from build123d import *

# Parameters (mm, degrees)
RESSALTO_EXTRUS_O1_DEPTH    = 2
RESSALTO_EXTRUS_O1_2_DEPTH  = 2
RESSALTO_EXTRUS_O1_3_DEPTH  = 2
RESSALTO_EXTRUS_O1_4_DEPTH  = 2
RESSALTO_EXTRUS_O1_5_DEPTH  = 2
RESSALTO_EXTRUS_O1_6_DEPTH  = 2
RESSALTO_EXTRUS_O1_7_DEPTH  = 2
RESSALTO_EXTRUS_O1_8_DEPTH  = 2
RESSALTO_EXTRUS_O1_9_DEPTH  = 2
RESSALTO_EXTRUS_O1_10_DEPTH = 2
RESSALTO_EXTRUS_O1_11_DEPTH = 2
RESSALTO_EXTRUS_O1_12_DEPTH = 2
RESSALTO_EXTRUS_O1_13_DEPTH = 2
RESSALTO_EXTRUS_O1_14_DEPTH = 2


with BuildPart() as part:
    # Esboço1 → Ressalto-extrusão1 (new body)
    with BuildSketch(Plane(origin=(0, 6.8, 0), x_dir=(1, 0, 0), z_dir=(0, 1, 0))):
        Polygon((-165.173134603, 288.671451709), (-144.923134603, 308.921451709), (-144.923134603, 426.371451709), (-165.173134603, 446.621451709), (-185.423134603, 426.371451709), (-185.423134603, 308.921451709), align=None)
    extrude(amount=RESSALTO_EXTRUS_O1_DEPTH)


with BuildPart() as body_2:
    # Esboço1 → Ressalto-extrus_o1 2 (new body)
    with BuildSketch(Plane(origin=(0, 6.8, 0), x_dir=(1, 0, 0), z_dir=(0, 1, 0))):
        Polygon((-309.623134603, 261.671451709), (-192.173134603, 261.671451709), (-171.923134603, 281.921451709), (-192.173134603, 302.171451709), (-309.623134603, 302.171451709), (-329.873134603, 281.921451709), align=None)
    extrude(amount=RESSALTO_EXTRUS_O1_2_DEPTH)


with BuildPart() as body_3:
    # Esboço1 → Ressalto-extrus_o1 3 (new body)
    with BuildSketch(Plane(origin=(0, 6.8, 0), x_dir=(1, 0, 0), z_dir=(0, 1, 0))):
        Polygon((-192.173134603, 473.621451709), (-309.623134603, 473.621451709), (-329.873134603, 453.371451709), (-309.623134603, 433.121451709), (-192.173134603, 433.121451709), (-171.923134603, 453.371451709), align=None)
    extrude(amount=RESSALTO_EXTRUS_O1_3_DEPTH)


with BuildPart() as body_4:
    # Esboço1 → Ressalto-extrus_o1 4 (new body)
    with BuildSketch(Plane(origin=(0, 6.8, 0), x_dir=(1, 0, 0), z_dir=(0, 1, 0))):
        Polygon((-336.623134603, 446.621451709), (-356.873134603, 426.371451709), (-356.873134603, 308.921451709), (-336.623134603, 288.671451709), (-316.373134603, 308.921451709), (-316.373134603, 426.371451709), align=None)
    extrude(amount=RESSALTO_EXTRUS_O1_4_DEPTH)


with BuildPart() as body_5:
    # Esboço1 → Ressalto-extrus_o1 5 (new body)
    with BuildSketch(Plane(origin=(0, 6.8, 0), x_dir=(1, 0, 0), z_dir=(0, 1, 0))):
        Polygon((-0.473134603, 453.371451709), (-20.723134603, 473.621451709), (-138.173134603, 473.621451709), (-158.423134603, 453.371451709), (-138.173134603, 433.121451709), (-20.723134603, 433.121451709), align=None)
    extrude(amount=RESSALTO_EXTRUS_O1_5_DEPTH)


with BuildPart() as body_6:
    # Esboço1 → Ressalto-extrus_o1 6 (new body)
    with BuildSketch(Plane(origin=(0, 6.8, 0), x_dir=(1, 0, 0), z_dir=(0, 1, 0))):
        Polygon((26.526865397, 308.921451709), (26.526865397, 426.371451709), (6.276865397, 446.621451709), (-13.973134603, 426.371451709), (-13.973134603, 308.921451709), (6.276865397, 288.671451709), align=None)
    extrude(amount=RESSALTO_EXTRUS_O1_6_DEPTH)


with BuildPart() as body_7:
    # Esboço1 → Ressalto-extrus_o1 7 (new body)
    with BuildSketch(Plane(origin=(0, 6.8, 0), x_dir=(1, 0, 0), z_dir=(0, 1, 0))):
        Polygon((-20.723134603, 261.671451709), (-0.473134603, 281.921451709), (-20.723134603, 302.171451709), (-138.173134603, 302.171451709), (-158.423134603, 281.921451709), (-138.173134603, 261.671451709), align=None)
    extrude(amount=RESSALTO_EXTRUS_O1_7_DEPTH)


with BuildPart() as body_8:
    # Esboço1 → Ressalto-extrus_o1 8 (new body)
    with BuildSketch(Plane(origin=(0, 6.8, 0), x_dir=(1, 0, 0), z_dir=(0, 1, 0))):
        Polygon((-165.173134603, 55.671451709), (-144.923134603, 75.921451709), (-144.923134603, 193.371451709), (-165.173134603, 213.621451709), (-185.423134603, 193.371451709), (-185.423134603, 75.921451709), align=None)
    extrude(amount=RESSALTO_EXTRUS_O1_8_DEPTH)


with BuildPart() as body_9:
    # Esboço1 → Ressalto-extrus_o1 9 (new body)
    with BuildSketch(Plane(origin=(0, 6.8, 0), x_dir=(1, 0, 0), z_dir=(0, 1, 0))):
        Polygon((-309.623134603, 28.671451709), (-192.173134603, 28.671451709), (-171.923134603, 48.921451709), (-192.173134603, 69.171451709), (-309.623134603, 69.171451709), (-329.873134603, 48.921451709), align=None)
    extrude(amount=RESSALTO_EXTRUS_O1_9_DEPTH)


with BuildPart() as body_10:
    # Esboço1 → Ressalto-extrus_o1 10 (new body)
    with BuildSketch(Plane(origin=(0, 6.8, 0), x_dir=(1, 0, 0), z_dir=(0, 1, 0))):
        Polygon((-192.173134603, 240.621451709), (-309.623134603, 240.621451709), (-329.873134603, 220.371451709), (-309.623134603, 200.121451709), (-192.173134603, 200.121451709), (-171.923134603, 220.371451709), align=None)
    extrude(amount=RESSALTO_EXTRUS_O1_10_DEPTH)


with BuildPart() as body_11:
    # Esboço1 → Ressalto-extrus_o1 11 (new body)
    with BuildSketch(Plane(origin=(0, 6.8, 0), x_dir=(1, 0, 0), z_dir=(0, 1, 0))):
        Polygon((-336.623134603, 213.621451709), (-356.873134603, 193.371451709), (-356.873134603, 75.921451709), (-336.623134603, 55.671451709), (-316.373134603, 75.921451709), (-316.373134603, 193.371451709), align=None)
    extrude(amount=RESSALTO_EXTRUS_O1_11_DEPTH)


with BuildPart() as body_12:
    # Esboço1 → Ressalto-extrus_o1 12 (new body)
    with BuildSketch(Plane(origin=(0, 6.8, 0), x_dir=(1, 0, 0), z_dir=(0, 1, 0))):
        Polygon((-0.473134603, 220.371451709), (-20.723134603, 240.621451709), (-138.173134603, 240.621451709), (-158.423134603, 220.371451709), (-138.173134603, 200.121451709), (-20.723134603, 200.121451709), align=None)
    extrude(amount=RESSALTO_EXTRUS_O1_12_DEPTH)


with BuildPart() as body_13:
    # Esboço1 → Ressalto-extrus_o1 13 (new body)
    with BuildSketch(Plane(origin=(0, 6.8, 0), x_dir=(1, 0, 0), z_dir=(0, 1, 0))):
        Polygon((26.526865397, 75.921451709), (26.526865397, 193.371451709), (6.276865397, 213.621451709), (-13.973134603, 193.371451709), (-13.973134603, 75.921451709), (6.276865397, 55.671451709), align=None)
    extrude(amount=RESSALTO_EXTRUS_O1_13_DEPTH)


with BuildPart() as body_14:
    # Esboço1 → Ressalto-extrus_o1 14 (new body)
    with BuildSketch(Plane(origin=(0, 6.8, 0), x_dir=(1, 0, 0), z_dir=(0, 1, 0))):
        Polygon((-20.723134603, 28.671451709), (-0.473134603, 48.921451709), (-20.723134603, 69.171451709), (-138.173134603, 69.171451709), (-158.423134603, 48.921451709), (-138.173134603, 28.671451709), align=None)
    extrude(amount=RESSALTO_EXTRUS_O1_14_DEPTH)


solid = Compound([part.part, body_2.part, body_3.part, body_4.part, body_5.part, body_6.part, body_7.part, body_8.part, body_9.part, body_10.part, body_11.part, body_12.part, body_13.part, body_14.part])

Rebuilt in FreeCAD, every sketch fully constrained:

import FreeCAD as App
import Part
import Sketcher

V = App.Vector

doc = App.newDocument("Part")
body = doc.addObject("PartDesign::Body", "Body")

# Sketch on XZ plane
sketch1 = doc.addObject("Sketcher::SketchObject", "Sketch")
body.addObject(sketch1)
sketch1.AttachmentSupport = (doc.XZ_Plane, [""])
sketch1.MapMode = "FlatFace"
sketch1.AttachmentOffset = App.Placement(V(0, 0, -6.8), App.Rotation())
sketch1.addGeometry([
    Part.LineSegment(V(-165.173135, -288.671452, 0), V(-144.923135, -308.921452, 0)),  # 0
    Part.LineSegment(V(-144.923135, -308.921452, 0), V(-144.923135, -426.371452, 0)),  # 1
    Part.LineSegment(V(-144.923135, -426.371452, 0), V(-165.173135, -446.621452, 0)),  # 2
    Part.LineSegment(V(-165.173135, -446.621452, 0), V(-185.423135, -426.371452, 0)),  # 3
    Part.LineSegment(V(-185.423135, -426.371452, 0), V(-185.423135, -308.921452, 0)),  # 4
    Part.LineSegment(V(-185.423135, -308.921452, 0), V(-165.173135, -288.671452, 0)),  # 5
], False)
sketch1.addConstraint([
    Sketcher.Constraint("Coincident", 0, 2, 1, 1),
    Sketcher.Constraint("Coincident", 1, 2, 2, 1),
    Sketcher.Constraint("Coincident", 2, 2, 3, 1),
    Sketcher.Constraint("Coincident", 3, 2, 4, 1),
    Sketcher.Constraint("Coincident", 4, 2, 5, 1),
    Sketcher.Constraint("Coincident", 5, 2, 0, 1),
    Sketcher.Constraint("Vertical", 1),
    Sketcher.Constraint("Vertical", 4),
    Sketcher.Constraint("Perpendicular", 0, 2),
    Sketcher.Constraint("Perpendicular", 2, 3),
    Sketcher.Constraint("Perpendicular", 3, 5),
    Sketcher.Constraint("Horizontal", 1, 2, 3, 2),
    Sketcher.Constraint("Horizontal", 0, 2, 4, 2),
    Sketcher.Constraint("Vertical", 2, 2, 5, 2),
    Sketcher.Constraint("DistanceY", 1, 2, 1, 1, 117.45),
    Sketcher.Constraint("DistanceY", 2, 2, 0, 2, 137.7),
    Sketcher.Constraint("DistanceY", 0, 2, -1, 1, 308.921452),
    Sketcher.Constraint("DistanceX", 0, 2, -1, 1, 144.923135),
])
pad1 = doc.addObject("PartDesign::Pad", "Pad")
body.addObject(pad1)
pad1.Profile = sketch1
pad1.Length = 2
pad1.Reversed = True
body2 = doc.addObject("PartDesign::Body", "Body001")

# Sketch on XZ plane
sketch2 = doc.addObject("Sketcher::SketchObject", "Sketch001")
body2.addObject(sketch2)
sketch2.AttachmentSupport = (doc.getObject("XZ_Plane001"), [""])
sketch2.MapMode = "FlatFace"
sketch2.AttachmentOffset = App.Placement(V(0, 0, -6.8), App.Rotation())
sketch2.addGeometry([
    Part.LineSegment(V(-309.623135, -261.671452, 0), V(-192.173135, -261.671452, 0)),  # 0
    Part.LineSegment(V(-192.173135, -261.671452, 0), V(-171.923135, -281.921452, 0)),  # 1
    Part.LineSegment(V(-171.923135, -281.921452, 0), V(-192.173135, -302.171452, 0)),  # 2
    Part.LineSegment(V(-192.173135, -302.171452, 0), V(-309.623135, -302.171452, 0)),  # 3
    Part.LineSegment(V(-309.623135, -302.171452, 0), V(-329.873135, -281.921452, 0)),  # 4
    Part.LineSegment(V(-329.873135, -281.921452, 0), V(-309.623135, -261.671452, 0)),  # 5
], False)
sketch2.addConstraint([
    Sketcher.Constraint("Coincident", 0, 2, 1, 1),
    Sketcher.Constraint("Coincident", 1, 2, 2, 1),
    Sketcher.Constraint("Coincident", 2, 2, 3, 1),
    Sketcher.Constraint("Coincident", 3, 2, 4, 1),
    Sketcher.Constraint("Coincident", 4, 2, 5, 1),
    Sketcher.Constraint("Coincident", 5, 2, 0, 1),
    Sketcher.Constraint("Horizontal", 0),
    Sketcher.Constraint("Horizontal", 3),
    Sketcher.Constraint("Perpendicular", 1, 2),
    Sketcher.Constraint("Perpendicular", 2, 4),
    Sketcher.Constraint("Perpendicular", 4, 5),
    Sketcher.Constraint("Horizontal", 1, 2, 4, 2),
    Sketcher.Constraint("Vertical", 0, 2, 2, 2),
    Sketcher.Constraint("Vertical", 3, 2, 5, 2),
    Sketcher.Constraint("DistanceX", 0, 1, 0, 2, 117.45),
    Sketcher.Constraint("DistanceY", 2, 2, 0, 2, 40.5),
    Sketcher.Constraint("DistanceY", 0, 2, -1, 1, 261.671452),
    Sketcher.Constraint("DistanceX", 0, 2, -1, 1, 192.173135),
])
pad2 = doc.addObject("PartDesign::Pad", "Pad001")
body2.addObject(pad2)
pad2.Profile = sketch2
pad2.Length = 2
pad2.Reversed = True
body3 = doc.addObject("PartDesign::Body", "Body002")

# Sketch on XZ plane
sketch3 = doc.addObject("Sketcher::SketchObject", "Sketch002")
body3.addObject(sketch3)
sketch3.AttachmentSupport = (doc.getObject("XZ_Plane002"), [""])
sketch3.MapMode = "FlatFace"
sketch3.AttachmentOffset = App.Placement(V(0, 0, -6.8), App.Rotation())
sketch3.addGeometry([
    Part.LineSegment(V(-192.173135, -473.621452, 0), V(-309.623135, -473.621452, 0)),  # 0
    Part.LineSegment(V(-309.623135, -473.621452, 0), V(-329.873135, -453.371452, 0)),  # 1
    Part.LineSegment(V(-329.873135, -453.371452, 0), V(-309.623135, -433.121452, 0)),  # 2
    Part.LineSegment(V(-309.623135, -433.121452, 0), V(-192.173135, -433.121452, 0)),  # 3
    Part.LineSegment(V(-192.173135, -433.121452, 0), V(-171.923135, -453.371452, 0)),  # 4
    Part.LineSegment(V(-171.923135, -453.371452, 0), V(-192.173135, -473.621452, 0)),  # 5
], False)
sketch3.addConstraint([
    Sketcher.Constraint("Coincident", 0, 2, 1, 1),
    Sketcher.Constraint("Coincident", 1, 2, 2, 1),
    Sketcher.Constraint("Coincident", 2, 2, 3, 1),
    Sketcher.Constraint("Coincident", 3, 2, 4, 1),
    Sketcher.Constraint("Coincident", 4, 2, 5, 1),
    Sketcher.Constraint("Coincident", 5, 2, 0, 1),
    Sketcher.Constraint("Horizontal", 0),
    Sketcher.Constraint("Horizontal", 3),
    Sketcher.Constraint("Perpendicular", 1, 2),
    Sketcher.Constraint("Perpendicular", 2, 4),
    Sketcher.Constraint("Perpendicular", 4, 5),
    Sketcher.Constraint("Horizontal", 1, 2, 4, 2),
    Sketcher.Constraint("Vertical", 0, 2, 2, 2),
    Sketcher.Constraint("Vertical", 3, 2, 5, 2),
    Sketcher.Constraint("DistanceX", 0, 2, 0, 1, 117.45),
    Sketcher.Constraint("DistanceY", 0, 2, 2, 2, 40.5),
    Sketcher.Constraint("DistanceY", 0, 2, -1, 1, 473.621452),
    Sketcher.Constraint("DistanceX", 0, 2, -1, 1, 309.623135),
])
pad3 = doc.addObject("PartDesign::Pad", "Pad002")
body3.addObject(pad3)
pad3.Profile = sketch3
pad3.Length = 2
pad3.Reversed = True
body4 = doc.addObject("PartDesign::Body", "Body003")

# Sketch on XZ plane
sketch4 = doc.addObject("Sketcher::SketchObject", "Sketch003")
body4.addObject(sketch4)
sketch4.AttachmentSupport = (doc.getObject("XZ_Plane003"), [""])
sketch4.MapMode = "FlatFace"
sketch4.AttachmentOffset = App.Placement(V(0, 0, -6.8), App.Rotation())
sketch4.addGeometry([
    Part.LineSegment(V(-336.623135, -446.621452, 0), V(-356.873135, -426.371452, 0)),  # 0
    Part.LineSegment(V(-356.873135, -426.371452, 0), V(-356.873135, -308.921452, 0)),  # 1
    Part.LineSegment(V(-356.873135, -308.921452, 0), V(-336.623135, -288.671452, 0)),  # 2
    Part.LineSegment(V(-336.623135, -288.671452, 0), V(-316.373135, -308.921452, 0)),  # 3
    Part.LineSegment(V(-316.373135, -308.921452, 0), V(-316.373135, -426.371452, 0)),  # 4
    Part.LineSegment(V(-316.373135, -426.371452, 0), V(-336.623135, -446.621452, 0)),  # 5
], False)
sketch4.addConstraint([
    Sketcher.Constraint("Coincident", 0, 2, 1, 1),
    Sketcher.Constraint("Coincident", 1, 2, 2, 1),
    Sketcher.Constraint("Coincident", 2, 2, 3, 1),
    Sketcher.Constraint("Coincident", 3, 2, 4, 1),
    Sketcher.Constraint("Coincident", 4, 2, 5, 1),
    Sketcher.Constraint("Coincident", 5, 2, 0, 1),
    Sketcher.Constraint("Vertical", 1),
    Sketcher.Constraint("Vertical", 4),
    Sketcher.Constraint("Perpendicular", 0, 2),
    Sketcher.Constraint("Perpendicular", 2, 3),
    Sketcher.Constraint("Perpendicular", 3, 5),
    Sketcher.Constraint("Horizontal", 1, 2, 3, 2),
    Sketcher.Constraint("Horizontal", 0, 2, 4, 2),
    Sketcher.Constraint("Vertical", 2, 2, 5, 2),
    Sketcher.Constraint("DistanceY", 1, 1, 1, 2, 117.45),
    Sketcher.Constraint("DistanceY", 0, 2, 2, 2, 137.7),
    Sketcher.Constraint("DistanceY", 0, 2, -1, 1, 426.371452),
    Sketcher.Constraint("DistanceX", 0, 2, -1, 1, 356.873135),
])
pad4 = doc.addObject("PartDesign::Pad", "Pad003")
body4.addObject(pad4)
pad4.Profile = sketch4
pad4.Length = 2
pad4.Reversed = True
body5 = doc.addObject("PartDesign::Body", "Body004")

# Sketch on XZ plane
sketch5 = doc.addObject("Sketcher::SketchObject", "Sketch004")
body5.addObject(sketch5)
sketch5.AttachmentSupport = (doc.getObject("XZ_Plane004"), [""])
sketch5.MapMode = "FlatFace"
sketch5.AttachmentOffset = App.Placement(V(0, 0, -6.8), App.Rotation())
sketch5.addGeometry([
    Part.LineSegment(V(-0.473135, -453.371452, 0), V(-20.723135, -473.621452, 0)),  # 0
    Part.LineSegment(V(-20.723135, -473.621452, 0), V(-138.173135, -473.621452, 0)),  # 1
    Part.LineSegment(V(-138.173135, -473.621452, 0), V(-158.423135, -453.371452, 0)),  # 2
    Part.LineSegment(V(-158.423135, -453.371452, 0), V(-138.173135, -433.121452, 0)),  # 3
    Part.LineSegment(V(-138.173135, -433.121452, 0), V(-20.723135, -433.121452, 0)),  # 4
    Part.LineSegment(V(-20.723135, -433.121452, 0), V(-0.473135, -453.371452, 0)),  # 5
], False)
sketch5.addConstraint([
    Sketcher.Constraint("Coincident", 0, 2, 1, 1),
    Sketcher.Constraint("Coincident", 1, 2, 2, 1),
    Sketcher.Constraint("Coincident", 2, 2, 3, 1),
    Sketcher.Constraint("Coincident", 3, 2, 4, 1),
    Sketcher.Constraint("Coincident", 4, 2, 5, 1),
    Sketcher.Constraint("Coincident", 5, 2, 0, 1),
    Sketcher.Constraint("Horizontal", 1),
    Sketcher.Constraint("Horizontal", 4),
    Sketcher.Constraint("Perpendicular", 0, 2),
    Sketcher.Constraint("Perpendicular", 2, 3),
    Sketcher.Constraint("Perpendicular", 3, 5),
    Sketcher.Constraint("Horizontal", 2, 2, 5, 2),
    Sketcher.Constraint("Vertical", 1, 2, 3, 2),
    Sketcher.Constraint("Vertical", 0, 2, 4, 2),
    Sketcher.Constraint("DistanceX", 1, 2, 1, 1, 117.45),
    Sketcher.Constraint("DistanceX", 2, 2, 0, 2, 137.7),
    Sketcher.Constraint("DistanceY", 0, 2, -1, 1, 473.621452),
    Sketcher.Constraint("DistanceX", 0, 2, -1, 1, 20.723135),
])
pad5 = doc.addObject("PartDesign::Pad", "Pad004")
body5.addObject(pad5)
pad5.Profile = sketch5
pad5.Length = 2
pad5.Reversed = True
body6 = doc.addObject("PartDesign::Body", "Body005")

# Sketch on XZ plane
sketch6 = doc.addObject("Sketcher::SketchObject", "Sketch005")
body6.addObject(sketch6)
sketch6.AttachmentSupport = (doc.getObject("XZ_Plane005"), [""])
sketch6.MapMode = "FlatFace"
sketch6.AttachmentOffset = App.Placement(V(0, 0, -6.8), App.Rotation())
sketch6.addGeometry([
    Part.LineSegment(V(26.526865, -308.921452, 0), V(26.526865, -426.371452, 0)),  # 0
    Part.LineSegment(V(26.526865, -426.371452, 0), V(6.276865, -446.621452, 0)),  # 1
    Part.LineSegment(V(6.276865, -446.621452, 0), V(-13.973135, -426.371452, 0)),  # 2
    Part.LineSegment(V(-13.973135, -426.371452, 0), V(-13.973135, -308.921452, 0)),  # 3
    Part.LineSegment(V(-13.973135, -308.921452, 0), V(6.276865, -288.671452, 0)),  # 4
    Part.LineSegment(V(6.276865, -288.671452, 0), V(26.526865, -308.921452, 0)),  # 5
], False)
sketch6.addConstraint([
    Sketcher.Constraint("Coincident", 0, 2, 1, 1),
    Sketcher.Constraint("Coincident", 1, 2, 2, 1),
    Sketcher.Constraint("Coincident", 2, 2, 3, 1),
    Sketcher.Constraint("Coincident", 3, 2, 4, 1),
    Sketcher.Constraint("Coincident", 4, 2, 5, 1),
    Sketcher.Constraint("Coincident", 5, 2, 0, 1),
    Sketcher.Constraint("Vertical", 0),
    Sketcher.Constraint("Vertical", 3),
    Sketcher.Constraint("Perpendicular", 1, 2),
    Sketcher.Constraint("Perpendicular", 2, 4),
    Sketcher.Constraint("Perpendicular", 4, 5),
    Sketcher.Constraint("Horizontal", 0, 2, 2, 2),
    Sketcher.Constraint("Horizontal", 3, 2, 5, 2),
    Sketcher.Constraint("Vertical", 1, 2, 4, 2),
    Sketcher.Constraint("DistanceY", 0, 2, 0, 1, 117.45),
    Sketcher.Constraint("DistanceX", 2, 2, 0, 2, 40.5),
    Sketcher.Constraint("DistanceY", 0, 2, -1, 1, 426.371452),
    Sketcher.Constraint("DistanceX", -1, 1, 0, 2, 26.526865),
])
pad6 = doc.addObject("PartDesign::Pad", "Pad005")
body6.addObject(pad6)
pad6.Profile = sketch6
pad6.Length = 2
pad6.Reversed = True
body7 = doc.addObject("PartDesign::Body", "Body006")

# Sketch on XZ plane
sketch7 = doc.addObject("Sketcher::SketchObject", "Sketch006")
body7.addObject(sketch7)
sketch7.AttachmentSupport = (doc.getObject("XZ_Plane006"), [""])
sketch7.MapMode = "FlatFace"
sketch7.AttachmentOffset = App.Placement(V(0, 0, -6.8), App.Rotation())
sketch7.addGeometry([
    Part.LineSegment(V(-20.723135, -261.671452, 0), V(-0.473135, -281.921452, 0)),  # 0
    Part.LineSegment(V(-0.473135, -281.921452, 0), V(-20.723135, -302.171452, 0)),  # 1
    Part.LineSegment(V(-20.723135, -302.171452, 0), V(-138.173135, -302.171452, 0)),  # 2
    Part.LineSegment(V(-138.173135, -302.171452, 0), V(-158.423135, -281.921452, 0)),  # 3
    Part.LineSegment(V(-158.423135, -281.921452, 0), V(-138.173135, -261.671452, 0)),  # 4
    Part.LineSegment(V(-138.173135, -261.671452, 0), V(-20.723135, -261.671452, 0)),  # 5
], False)
sketch7.addConstraint([
    Sketcher.Constraint("Coincident", 0, 2, 1, 1),
    Sketcher.Constraint("Coincident", 1, 2, 2, 1),
    Sketcher.Constraint("Coincident", 2, 2, 3, 1),
    Sketcher.Constraint("Coincident", 3, 2, 4, 1),
    Sketcher.Constraint("Coincident", 4, 2, 5, 1),
    Sketcher.Constraint("Coincident", 5, 2, 0, 1),
    Sketcher.Constraint("Horizontal", 2),
    Sketcher.Constraint("Horizontal", 5),
    Sketcher.Constraint("Perpendicular", 0, 1),
    Sketcher.Constraint("Perpendicular", 1, 3),
    Sketcher.Constraint("Perpendicular", 3, 4),
    Sketcher.Constraint("Horizontal", 0, 2, 3, 2),
    Sketcher.Constraint("Vertical", 2, 2, 4, 2),
    Sketcher.Constraint("Vertical", 1, 2, 5, 2),
    Sketcher.Constraint("DistanceX", 2, 2, 2, 1, 117.45),
    Sketcher.Constraint("DistanceX", 2, 2, 0, 2, 137.7),
    Sketcher.Constraint("DistanceY", 0, 2, -1, 1, 281.921452),
    Sketcher.Constraint("DistanceX", 0, 2, -1, 1, 0.473135),
])
pad7 = doc.addObject("PartDesign::Pad", "Pad006")
body7.addObject(pad7)
pad7.Profile = sketch7
pad7.Length = 2
pad7.Reversed = True
body8 = doc.addObject("PartDesign::Body", "Body007")

# Sketch on XZ plane
sketch8 = doc.addObject("Sketcher::SketchObject", "Sketch007")
body8.addObject(sketch8)
sketch8.AttachmentSupport = (doc.getObject("XZ_Plane007"), [""])
sketch8.MapMode = "FlatFace"
sketch8.AttachmentOffset = App.Placement(V(0, 0, -6.8), App.Rotation())
sketch8.addGeometry([
    Part.LineSegment(V(-165.173135, -55.671452, 0), V(-144.923135, -75.921452, 0)),  # 0
    Part.LineSegment(V(-144.923135, -75.921452, 0), V(-144.923135, -193.371452, 0)),  # 1
    Part.LineSegment(V(-144.923135, -193.371452, 0), V(-165.173135, -213.621452, 0)),  # 2
    Part.LineSegment(V(-165.173135, -213.621452, 0), V(-185.423135, -193.371452, 0)),  # 3
    Part.LineSegment(V(-185.423135, -193.371452, 0), V(-185.423135, -75.921452, 0)),  # 4
    Part.LineSegment(V(-185.423135, -75.921452, 0), V(-165.173135, -55.671452, 0)),  # 5
], False)
sketch8.addConstraint([
    Sketcher.Constraint("Coincident", 0, 2, 1, 1),
    Sketcher.Constraint("Coincident", 1, 2, 2, 1),
    Sketcher.Constraint("Coincident", 2, 2, 3, 1),
    Sketcher.Constraint("Coincident", 3, 2, 4, 1),
    Sketcher.Constraint("Coincident", 4, 2, 5, 1),
    Sketcher.Constraint("Coincident", 5, 2, 0, 1),
    Sketcher.Constraint("Vertical", 1),
    Sketcher.Constraint("Vertical", 4),
    Sketcher.Constraint("Perpendicular", 0, 2),
    Sketcher.Constraint("Perpendicular", 2, 3),
    Sketcher.Constraint("Perpendicular", 3, 5),
    Sketcher.Constraint("Horizontal", 1, 2, 3, 2),
    Sketcher.Constraint("Horizontal", 0, 2, 4, 2),
    Sketcher.Constraint("Vertical", 2, 2, 5, 2),
    Sketcher.Constraint("DistanceY", 1, 2, 1, 1, 117.45),
    Sketcher.Constraint("DistanceY", 2, 2, 0, 2, 137.7),
    Sketcher.Constraint("DistanceY", 0, 2, -1, 1, 75.921452),
    Sketcher.Constraint("DistanceX", 0, 2, -1, 1, 144.923135),
])
pad8 = doc.addObject("PartDesign::Pad", "Pad007")
body8.addObject(pad8)
pad8.Profile = sketch8
pad8.Length = 2
pad8.Reversed = True
body9 = doc.addObject("PartDesign::Body", "Body008")

# Sketch on XZ plane
sketch9 = doc.addObject("Sketcher::SketchObject", "Sketch008")
body9.addObject(sketch9)
sketch9.AttachmentSupport = (doc.getObject("XZ_Plane008"), [""])
sketch9.MapMode = "FlatFace"
sketch9.AttachmentOffset = App.Placement(V(0, 0, -6.8), App.Rotation())
sketch9.addGeometry([
    Part.LineSegment(V(-309.623135, -28.671452, 0), V(-192.173135, -28.671452, 0)),  # 0
    Part.LineSegment(V(-192.173135, -28.671452, 0), V(-171.923135, -48.921452, 0)),  # 1
    Part.LineSegment(V(-171.923135, -48.921452, 0), V(-192.173135, -69.171452, 0)),  # 2
    Part.LineSegment(V(-192.173135, -69.171452, 0), V(-309.623135, -69.171452, 0)),  # 3
    Part.LineSegment(V(-309.623135, -69.171452, 0), V(-329.873135, -48.921452, 0)),  # 4
    Part.LineSegment(V(-329.873135, -48.921452, 0), V(-309.623135, -28.671452, 0)),  # 5
], False)
sketch9.addConstraint([
    Sketcher.Constraint("Coincident", 0, 2, 1, 1),
    Sketcher.Constraint("Coincident", 1, 2, 2, 1),
    Sketcher.Constraint("Coincident", 2, 2, 3, 1),
    Sketcher.Constraint("Coincident", 3, 2, 4, 1),
    Sketcher.Constraint("Coincident", 4, 2, 5, 1),
    Sketcher.Constraint("Coincident", 5, 2, 0, 1),
    Sketcher.Constraint("Horizontal", 0),
    Sketcher.Constraint("Horizontal", 3),
    Sketcher.Constraint("Perpendicular", 1, 2),
    Sketcher.Constraint("Perpendicular", 2, 4),
    Sketcher.Constraint("Perpendicular", 4, 5),
    Sketcher.Constraint("Horizontal", 1, 2, 4, 2),
    Sketcher.Constraint("Vertical", 0, 2, 2, 2),
    Sketcher.Constraint("Vertical", 3, 2, 5, 2),
    Sketcher.Constraint("DistanceX", 0, 1, 0, 2, 117.45),
    Sketcher.Constraint("DistanceY", 2, 2, 0, 2, 40.5),
    Sketcher.Constraint("DistanceY", 0, 2, -1, 1, 28.671452),
    Sketcher.Constraint("DistanceX", 0, 2, -1, 1, 192.173135),
])
pad9 = doc.addObject("PartDesign::Pad", "Pad008")
body9.addObject(pad9)
pad9.Profile = sketch9
pad9.Length = 2
pad9.Reversed = True
body10 = doc.addObject("PartDesign::Body", "Body009")

# Sketch on XZ plane
sketch10 = doc.addObject("Sketcher::SketchObject", "Sketch009")
body10.addObject(sketch10)
sketch10.AttachmentSupport = (doc.getObject("XZ_Plane009"), [""])
sketch10.MapMode = "FlatFace"
sketch10.AttachmentOffset = App.Placement(V(0, 0, -6.8), App.Rotation())
sketch10.addGeometry([
    Part.LineSegment(V(-192.173135, -240.621452, 0), V(-309.623135, -240.621452, 0)),  # 0
    Part.LineSegment(V(-309.623135, -240.621452, 0), V(-329.873135, -220.371452, 0)),  # 1
    Part.LineSegment(V(-329.873135, -220.371452, 0), V(-309.623135, -200.121452, 0)),  # 2
    Part.LineSegment(V(-309.623135, -200.121452, 0), V(-192.173135, -200.121452, 0)),  # 3
    Part.LineSegment(V(-192.173135, -200.121452, 0), V(-171.923135, -220.371452, 0)),  # 4
    Part.LineSegment(V(-171.923135, -220.371452, 0), V(-192.173135, -240.621452, 0)),  # 5
], False)
sketch10.addConstraint([
    Sketcher.Constraint("Coincident", 0, 2, 1, 1),
    Sketcher.Constraint("Coincident", 1, 2, 2, 1),
    Sketcher.Constraint("Coincident", 2, 2, 3, 1),
    Sketcher.Constraint("Coincident", 3, 2, 4, 1),
    Sketcher.Constraint("Coincident", 4, 2, 5, 1),
    Sketcher.Constraint("Coincident", 5, 2, 0, 1),
    Sketcher.Constraint("Horizontal", 0),
    Sketcher.Constraint("Horizontal", 3),
    Sketcher.Constraint("Perpendicular", 1, 2),
    Sketcher.Constraint("Perpendicular", 2, 4),
    Sketcher.Constraint("Perpendicular", 4, 5),
    Sketcher.Constraint("Horizontal", 1, 2, 4, 2),
    Sketcher.Constraint("Vertical", 0, 2, 2, 2),
    Sketcher.Constraint("Vertical", 3, 2, 5, 2),
    Sketcher.Constraint("DistanceX", 0, 2, 0, 1, 117.45),
    Sketcher.Constraint("DistanceY", 0, 2, 2, 2, 40.5),
    Sketcher.Constraint("DistanceY", 0, 2, -1, 1, 240.621452),
    Sketcher.Constraint("DistanceX", 0, 2, -1, 1, 309.623135),
])
pad10 = doc.addObject("PartDesign::Pad", "Pad009")
body10.addObject(pad10)
pad10.Profile = sketch10
pad10.Length = 2
pad10.Reversed = True
body11 = doc.addObject("PartDesign::Body", "Body010")

# Sketch on XZ plane
sketch11 = doc.addObject("Sketcher::SketchObject", "Sketch010")
body11.addObject(sketch11)
sketch11.AttachmentSupport = (doc.getObject("XZ_Plane010"), [""])
sketch11.MapMode = "FlatFace"
sketch11.AttachmentOffset = App.Placement(V(0, 0, -6.8), App.Rotation())
sketch11.addGeometry([
    Part.LineSegment(V(-336.623135, -213.621452, 0), V(-356.873135, -193.371452, 0)),  # 0
    Part.LineSegment(V(-356.873135, -193.371452, 0), V(-356.873135, -75.921452, 0)),  # 1
    Part.LineSegment(V(-356.873135, -75.921452, 0), V(-336.623135, -55.671452, 0)),  # 2
    Part.LineSegment(V(-336.623135, -55.671452, 0), V(-316.373135, -75.921452, 0)),  # 3
    Part.LineSegment(V(-316.373135, -75.921452, 0), V(-316.373135, -193.371452, 0)),  # 4
    Part.LineSegment(V(-316.373135, -193.371452, 0), V(-336.623135, -213.621452, 0)),  # 5
], False)
sketch11.addConstraint([
    Sketcher.Constraint("Coincident", 0, 2, 1, 1),
    Sketcher.Constraint("Coincident", 1, 2, 2, 1),
    Sketcher.Constraint("Coincident", 2, 2, 3, 1),
    Sketcher.Constraint("Coincident", 3, 2, 4, 1),
    Sketcher.Constraint("Coincident", 4, 2, 5, 1),
    Sketcher.Constraint("Coincident", 5, 2, 0, 1),
    Sketcher.Constraint("Vertical", 1),
    Sketcher.Constraint("Vertical", 4),
    Sketcher.Constraint("Perpendicular", 0, 2),
    Sketcher.Constraint("Perpendicular", 2, 3),
    Sketcher.Constraint("Perpendicular", 3, 5),
    Sketcher.Constraint("Horizontal", 1, 2, 3, 2),
    Sketcher.Constraint("Horizontal", 0, 2, 4, 2),
    Sketcher.Constraint("Vertical", 2, 2, 5, 2),
    Sketcher.Constraint("DistanceY", 1, 1, 1, 2, 117.45),
    Sketcher.Constraint("DistanceY", 0, 2, 2, 2, 137.7),
    Sketcher.Constraint("DistanceY", 0, 2, -1, 1, 193.371452),
    Sketcher.Constraint("DistanceX", 0, 2, -1, 1, 356.873135),
])
pad11 = doc.addObject("PartDesign::Pad", "Pad010")
body11.addObject(pad11)
pad11.Profile = sketch11
pad11.Length = 2
pad11.Reversed = True
body12 = doc.addObject("PartDesign::Body", "Body011")

# Sketch on XZ plane
sketch12 = doc.addObject("Sketcher::SketchObject", "Sketch011")
body12.addObject(sketch12)
sketch12.AttachmentSupport = (doc.getObject("XZ_Plane011"), [""])
sketch12.MapMode = "FlatFace"
sketch12.AttachmentOffset = App.Placement(V(0, 0, -6.8), App.Rotation())
sketch12.addGeometry([
    Part.LineSegment(V(-0.473135, -220.371452, 0), V(-20.723135, -240.621452, 0)),  # 0
    Part.LineSegment(V(-20.723135, -240.621452, 0), V(-138.173135, -240.621452, 0)),  # 1
    Part.LineSegment(V(-138.173135, -240.621452, 0), V(-158.423135, -220.371452, 0)),  # 2
    Part.LineSegment(V(-158.423135, -220.371452, 0), V(-138.173135, -200.121452, 0)),  # 3
    Part.LineSegment(V(-138.173135, -200.121452, 0), V(-20.723135, -200.121452, 0)),  # 4
    Part.LineSegment(V(-20.723135, -200.121452, 0), V(-0.473135, -220.371452, 0)),  # 5
], False)
sketch12.addConstraint([
    Sketcher.Constraint("Coincident", 0, 2, 1, 1),
    Sketcher.Constraint("Coincident", 1, 2, 2, 1),
    Sketcher.Constraint("Coincident", 2, 2, 3, 1),
    Sketcher.Constraint("Coincident", 3, 2, 4, 1),
    Sketcher.Constraint("Coincident", 4, 2, 5, 1),
    Sketcher.Constraint("Coincident", 5, 2, 0, 1),
    Sketcher.Constraint("Horizontal", 1),
    Sketcher.Constraint("Horizontal", 4),
    Sketcher.Constraint("Perpendicular", 0, 2),
    Sketcher.Constraint("Perpendicular", 2, 3),
    Sketcher.Constraint("Perpendicular", 3, 5),
    Sketcher.Constraint("Horizontal", 2, 2, 5, 2),
    Sketcher.Constraint("Vertical", 1, 2, 3, 2),
    Sketcher.Constraint("Vertical", 0, 2, 4, 2),
    Sketcher.Constraint("DistanceX", 1, 2, 1, 1, 117.45),
    Sketcher.Constraint("DistanceX", 2, 2, 0, 2, 137.7),
    Sketcher.Constraint("DistanceY", 0, 2, -1, 1, 240.621452),
    Sketcher.Constraint("DistanceX", 0, 2, -1, 1, 20.723135),
])
pad12 = doc.addObject("PartDesign::Pad", "Pad011")
body12.addObject(pad12)
pad12.Profile = sketch12
pad12.Length = 2
pad12.Reversed = True
body13 = doc.addObject("PartDesign::Body", "Body012")

# Sketch on XZ plane
sketch13 = doc.addObject("Sketcher::SketchObject", "Sketch012")
body13.addObject(sketch13)
sketch13.AttachmentSupport = (doc.getObject("XZ_Plane012"), [""])
sketch13.MapMode = "FlatFace"
sketch13.AttachmentOffset = App.Placement(V(0, 0, -6.8), App.Rotation())
sketch13.addGeometry([
    Part.LineSegment(V(26.526865, -75.921452, 0), V(26.526865, -193.371452, 0)),  # 0
    Part.LineSegment(V(26.526865, -193.371452, 0), V(6.276865, -213.621452, 0)),  # 1
    Part.LineSegment(V(6.276865, -213.621452, 0), V(-13.973135, -193.371452, 0)),  # 2
    Part.LineSegment(V(-13.973135, -193.371452, 0), V(-13.973135, -75.921452, 0)),  # 3
    Part.LineSegment(V(-13.973135, -75.921452, 0), V(6.276865, -55.671452, 0)),  # 4
    Part.LineSegment(V(6.276865, -55.671452, 0), V(26.526865, -75.921452, 0)),  # 5
], False)
sketch13.addConstraint([
    Sketcher.Constraint("Coincident", 0, 2, 1, 1),
    Sketcher.Constraint("Coincident", 1, 2, 2, 1),
    Sketcher.Constraint("Coincident", 2, 2, 3, 1),
    Sketcher.Constraint("Coincident", 3, 2, 4, 1),
    Sketcher.Constraint("Coincident", 4, 2, 5, 1),
    Sketcher.Constraint("Coincident", 5, 2, 0, 1),
    Sketcher.Constraint("Vertical", 0),
    Sketcher.Constraint("Vertical", 3),
    Sketcher.Constraint("Perpendicular", 1, 2),
    Sketcher.Constraint("Perpendicular", 2, 4),
    Sketcher.Constraint("Perpendicular", 4, 5),
    Sketcher.Constraint("Horizontal", 0, 2, 2, 2),
    Sketcher.Constraint("Horizontal", 3, 2, 5, 2),
    Sketcher.Constraint("Vertical", 1, 2, 4, 2),
    Sketcher.Constraint("DistanceY", 0, 2, 0, 1, 117.45),
    Sketcher.Constraint("DistanceX", 2, 2, 0, 2, 40.5),
    Sketcher.Constraint("DistanceY", 0, 2, -1, 1, 193.371452),
    Sketcher.Constraint("DistanceX", -1, 1, 0, 2, 26.526865),
])
pad13 = doc.addObject("PartDesign::Pad", "Pad012")
body13.addObject(pad13)
pad13.Profile = sketch13
pad13.Length = 2
pad13.Reversed = True
body14 = doc.addObject("PartDesign::Body", "Body013")

# Sketch on XZ plane
sketch14 = doc.addObject("Sketcher::SketchObject", "Sketch013")
body14.addObject(sketch14)
sketch14.AttachmentSupport = (doc.getObject("XZ_Plane013"), [""])
sketch14.MapMode = "FlatFace"
sketch14.AttachmentOffset = App.Placement(V(0, 0, -6.8), App.Rotation())
sketch14.addGeometry([
    Part.LineSegment(V(-20.723135, -28.671452, 0), V(-0.473135, -48.921452, 0)),  # 0
    Part.LineSegment(V(-0.473135, -48.921452, 0), V(-20.723135, -69.171452, 0)),  # 1
    Part.LineSegment(V(-20.723135, -69.171452, 0), V(-138.173135, -69.171452, 0)),  # 2
    Part.LineSegment(V(-138.173135, -69.171452, 0), V(-158.423135, -48.921452, 0)),  # 3
    Part.LineSegment(V(-158.423135, -48.921452, 0), V(-138.173135, -28.671452, 0)),  # 4
    Part.LineSegment(V(-138.173135, -28.671452, 0), V(-20.723135, -28.671452, 0)),  # 5
], False)
sketch14.addConstraint([
    Sketcher.Constraint("Coincident", 0, 2, 1, 1),
    Sketcher.Constraint("Coincident", 1, 2, 2, 1),
    Sketcher.Constraint("Coincident", 2, 2, 3, 1),
    Sketcher.Constraint("Coincident", 3, 2, 4, 1),
    Sketcher.Constraint("Coincident", 4, 2, 5, 1),
    Sketcher.Constraint("Coincident", 5, 2, 0, 1),
    Sketcher.Constraint("Horizontal", 2),
    Sketcher.Constraint("Horizontal", 5),
    Sketcher.Constraint("Perpendicular", 0, 1),
    Sketcher.Constraint("Perpendicular", 1, 3),
    Sketcher.Constraint("Perpendicular", 3, 4),
    Sketcher.Constraint("Horizontal", 0, 2, 3, 2),
    Sketcher.Constraint("Vertical", 2, 2, 4, 2),
    Sketcher.Constraint("Vertical", 1, 2, 5, 2),
    Sketcher.Constraint("DistanceX", 2, 2, 2, 1, 117.45),
    Sketcher.Constraint("DistanceX", 2, 2, 0, 2, 137.7),
    Sketcher.Constraint("DistanceY", 0, 2, -1, 1, 48.921452),
    Sketcher.Constraint("DistanceX", 0, 2, -1, 1, 0.473135),
])
pad14 = doc.addObject("PartDesign::Pad", "Pad013")
body14.addObject(pad14)
pad14.Profile = sketch14
pad14.Length = 2
pad14.Reversed = True

doc.recompute()
